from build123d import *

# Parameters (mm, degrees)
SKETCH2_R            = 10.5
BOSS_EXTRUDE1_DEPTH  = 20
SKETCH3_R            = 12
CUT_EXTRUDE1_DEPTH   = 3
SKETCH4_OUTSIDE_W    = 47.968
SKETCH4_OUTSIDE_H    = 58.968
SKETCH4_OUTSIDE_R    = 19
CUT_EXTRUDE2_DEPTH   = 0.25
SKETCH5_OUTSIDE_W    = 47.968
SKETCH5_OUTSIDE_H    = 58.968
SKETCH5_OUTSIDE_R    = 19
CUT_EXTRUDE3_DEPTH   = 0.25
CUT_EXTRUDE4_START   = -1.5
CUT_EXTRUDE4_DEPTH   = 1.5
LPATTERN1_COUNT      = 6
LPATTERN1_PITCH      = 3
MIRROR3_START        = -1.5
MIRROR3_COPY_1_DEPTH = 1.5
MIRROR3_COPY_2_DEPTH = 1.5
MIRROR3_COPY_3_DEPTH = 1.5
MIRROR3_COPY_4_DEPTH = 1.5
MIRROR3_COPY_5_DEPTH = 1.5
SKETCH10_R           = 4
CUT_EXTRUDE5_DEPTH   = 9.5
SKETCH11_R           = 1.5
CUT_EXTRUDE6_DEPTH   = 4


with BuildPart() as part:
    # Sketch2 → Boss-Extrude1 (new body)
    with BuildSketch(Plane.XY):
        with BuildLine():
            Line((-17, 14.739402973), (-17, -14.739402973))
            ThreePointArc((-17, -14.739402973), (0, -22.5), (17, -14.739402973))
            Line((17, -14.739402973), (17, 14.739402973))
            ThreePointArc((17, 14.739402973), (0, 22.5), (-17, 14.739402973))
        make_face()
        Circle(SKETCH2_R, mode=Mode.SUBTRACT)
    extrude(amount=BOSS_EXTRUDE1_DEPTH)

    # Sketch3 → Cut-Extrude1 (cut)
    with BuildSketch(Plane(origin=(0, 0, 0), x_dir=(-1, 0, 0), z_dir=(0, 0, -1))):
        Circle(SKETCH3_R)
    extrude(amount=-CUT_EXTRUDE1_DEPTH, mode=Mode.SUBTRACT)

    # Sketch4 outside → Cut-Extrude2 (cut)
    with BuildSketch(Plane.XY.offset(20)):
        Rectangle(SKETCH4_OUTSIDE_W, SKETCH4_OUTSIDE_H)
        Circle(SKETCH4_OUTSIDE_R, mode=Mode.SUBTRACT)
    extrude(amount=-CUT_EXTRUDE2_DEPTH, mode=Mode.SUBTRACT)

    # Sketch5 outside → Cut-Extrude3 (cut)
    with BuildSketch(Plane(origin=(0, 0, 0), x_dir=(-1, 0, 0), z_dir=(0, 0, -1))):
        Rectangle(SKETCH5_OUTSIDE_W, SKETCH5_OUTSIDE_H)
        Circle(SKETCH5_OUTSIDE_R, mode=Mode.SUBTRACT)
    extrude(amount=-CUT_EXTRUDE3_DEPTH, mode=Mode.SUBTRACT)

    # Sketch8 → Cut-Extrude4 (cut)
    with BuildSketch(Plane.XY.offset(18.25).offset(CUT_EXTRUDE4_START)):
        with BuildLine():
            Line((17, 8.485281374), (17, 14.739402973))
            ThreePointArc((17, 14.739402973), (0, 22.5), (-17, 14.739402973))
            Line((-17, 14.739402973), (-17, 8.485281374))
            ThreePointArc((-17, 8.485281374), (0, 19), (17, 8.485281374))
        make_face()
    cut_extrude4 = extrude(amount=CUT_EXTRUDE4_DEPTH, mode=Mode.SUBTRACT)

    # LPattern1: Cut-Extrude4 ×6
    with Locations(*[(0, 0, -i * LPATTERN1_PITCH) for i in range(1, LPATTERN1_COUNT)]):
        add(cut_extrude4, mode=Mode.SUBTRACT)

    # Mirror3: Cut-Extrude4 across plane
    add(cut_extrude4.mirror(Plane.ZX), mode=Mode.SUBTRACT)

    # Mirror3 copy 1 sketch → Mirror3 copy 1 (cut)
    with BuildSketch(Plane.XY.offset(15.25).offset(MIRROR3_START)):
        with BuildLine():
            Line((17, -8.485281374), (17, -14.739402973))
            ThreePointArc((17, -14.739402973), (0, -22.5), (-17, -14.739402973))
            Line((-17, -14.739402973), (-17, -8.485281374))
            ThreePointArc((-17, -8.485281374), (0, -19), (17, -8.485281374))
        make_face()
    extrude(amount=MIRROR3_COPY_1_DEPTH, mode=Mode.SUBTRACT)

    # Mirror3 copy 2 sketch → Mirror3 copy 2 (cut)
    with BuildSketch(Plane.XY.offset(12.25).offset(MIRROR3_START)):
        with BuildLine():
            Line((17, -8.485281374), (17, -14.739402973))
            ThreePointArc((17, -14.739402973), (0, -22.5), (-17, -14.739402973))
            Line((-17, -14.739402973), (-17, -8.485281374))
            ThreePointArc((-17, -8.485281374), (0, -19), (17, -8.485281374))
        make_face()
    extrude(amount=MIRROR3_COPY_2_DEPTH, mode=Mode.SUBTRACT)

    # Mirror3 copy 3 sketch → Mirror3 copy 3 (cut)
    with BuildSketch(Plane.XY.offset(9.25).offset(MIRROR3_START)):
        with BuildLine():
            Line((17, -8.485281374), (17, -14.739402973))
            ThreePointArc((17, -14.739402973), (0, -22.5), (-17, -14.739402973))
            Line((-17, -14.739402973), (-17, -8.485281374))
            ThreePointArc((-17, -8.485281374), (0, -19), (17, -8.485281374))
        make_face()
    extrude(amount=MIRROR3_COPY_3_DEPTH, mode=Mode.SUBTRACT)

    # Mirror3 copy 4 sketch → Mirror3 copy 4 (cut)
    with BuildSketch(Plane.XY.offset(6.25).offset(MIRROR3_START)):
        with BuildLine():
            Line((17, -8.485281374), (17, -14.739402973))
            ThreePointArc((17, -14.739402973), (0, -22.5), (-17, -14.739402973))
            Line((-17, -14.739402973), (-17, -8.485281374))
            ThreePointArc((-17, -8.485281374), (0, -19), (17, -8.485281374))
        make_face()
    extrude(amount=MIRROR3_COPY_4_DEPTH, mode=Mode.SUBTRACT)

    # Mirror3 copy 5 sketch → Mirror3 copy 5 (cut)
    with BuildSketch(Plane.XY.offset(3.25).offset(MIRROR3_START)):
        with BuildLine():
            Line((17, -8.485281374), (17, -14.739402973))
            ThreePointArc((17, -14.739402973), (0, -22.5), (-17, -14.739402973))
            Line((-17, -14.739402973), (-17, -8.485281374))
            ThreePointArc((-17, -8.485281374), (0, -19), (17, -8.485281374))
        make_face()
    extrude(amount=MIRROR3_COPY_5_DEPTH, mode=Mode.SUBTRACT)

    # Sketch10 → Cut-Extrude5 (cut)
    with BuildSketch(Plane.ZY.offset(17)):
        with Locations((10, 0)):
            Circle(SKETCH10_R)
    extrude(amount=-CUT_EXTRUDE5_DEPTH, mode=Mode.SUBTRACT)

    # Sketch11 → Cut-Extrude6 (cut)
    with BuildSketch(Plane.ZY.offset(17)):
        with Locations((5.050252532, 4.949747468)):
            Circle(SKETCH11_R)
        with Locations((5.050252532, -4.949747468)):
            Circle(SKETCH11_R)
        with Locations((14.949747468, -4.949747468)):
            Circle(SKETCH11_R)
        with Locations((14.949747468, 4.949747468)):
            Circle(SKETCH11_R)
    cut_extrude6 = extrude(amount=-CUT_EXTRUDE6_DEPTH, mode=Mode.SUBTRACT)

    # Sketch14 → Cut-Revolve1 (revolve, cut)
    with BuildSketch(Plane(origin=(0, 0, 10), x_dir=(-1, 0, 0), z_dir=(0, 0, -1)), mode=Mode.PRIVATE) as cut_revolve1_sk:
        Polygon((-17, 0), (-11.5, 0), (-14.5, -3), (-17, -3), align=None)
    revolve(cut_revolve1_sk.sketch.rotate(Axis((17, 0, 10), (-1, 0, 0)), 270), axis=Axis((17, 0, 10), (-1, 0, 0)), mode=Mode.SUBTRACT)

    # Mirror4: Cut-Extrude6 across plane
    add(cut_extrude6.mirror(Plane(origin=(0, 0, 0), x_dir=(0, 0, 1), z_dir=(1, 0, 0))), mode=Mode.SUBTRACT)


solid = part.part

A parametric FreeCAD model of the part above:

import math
import FreeCAD as App
import Part
import Sketcher
from FreeCAD import Vector
Q = App.Units.Quantity


def add_polygon(sketch, points):
    """Adds a closed chain of lines whose ends are joined by coincident constraints."""
    first, n = sketch.GeometryCount, len(points)
    for a, b in zip(points, points[1:] + points[:1]):
        sketch.addGeometry(Part.LineSegment(App.Vector(*a, 0), App.Vector(*b, 0)), False)
    for i in range(n):
        sketch.addConstraint(Sketcher.Constraint("Coincident", first + i, 2, first + (i + 1) % n, 1))

doc = App.newDocument("Part")
body = doc.addObject("PartDesign::Body", "Body")

sketch1 = body.newObject("Sketcher::SketchObject", "Sketch")
sketch1.AttachmentSupport = (doc.getObject("XY_Plane"), [""])
sketch1.MapMode = "FlatFace"
sketch1.addGeometry([
    Part.LineSegment(Vector(-17, 15, 0), Vector(-17, -15, 0)),
    Part.ArcOfCircle(Part.Circle(Vector(0, 0, 0), Vector(0, 0, 1), 22), math.radians(-139), math.radians(-41)),
    Part.LineSegment(Vector(17, -15, 0), Vector(17, 15, 0)),
    Part.ArcOfCircle(Part.Circle(Vector(0, 0, 0), Vector(0, 0, 1), 22), math.radians(41), math.radians(139)),
    Part.Circle(Vector(0, 0, 0), Vector(0, 0, 1), 10),
], False)
sketch1.addConstraint([
    Sketcher.Constraint("Coincident", 0, 2, 1, 1),
    Sketcher.Constraint("Coincident", 1, 2, 2, 1),
    Sketcher.Constraint("Coincident", 2, 2, 3, 1),
    Sketcher.Constraint("Coincident", 3, 2, 0, 1),
    Sketcher.Constraint("Vertical", 0),
    Sketcher.Constraint("Vertical", 2),
    Sketcher.Constraint("Coincident", 1, 3, -1, 1),
    Sketcher.Constraint("Coincident", 3, 3, -1, 1),
    Sketcher.Constraint("Coincident", 4, 3, -1, 1),
    Sketcher.Constraint("Equal", 1, 3),
    Sketcher.Constraint("Horizontal", 0, 2, 1, 2),
    Sketcher.Constraint("Diameter", 4, 21.0),
    Sketcher.Constraint("Radius", 1, 22.5),
    Sketcher.Constraint("DistanceX", 0, 2, -1, 1, 17.0),
])
pad1 = body.newObject("PartDesign::Pad", "Pad")
pad1.Profile = sketch1
pad1.Length = 20

sketch2 = body.newObject("Sketcher::SketchObject", "Sketch001")
sketch2.AttachmentSupport = (doc.getObject("XY_Plane"), [""])
sketch2.MapMode = "FlatFace"
sketch2.addGeometry(Part.Circle(Vector(0, 0, 0), Vector(0, 0, 1), 12), False)
sketch2.addConstraint([
    Sketcher.Constraint("Coincident", 0, 3, -1, 1),
    Sketcher.Constraint("Diameter", 0, 24.0),
])
pocket1 = body.newObject("PartDesign::Pocket", "Pocket")
pocket1.Profile = sketch2
pocket1.Length = 3
pocket1.Reversed = True

sketch3 = body.newObject("Sketcher::SketchObject", "Sketch002")
sketch3.AttachmentSupport = (doc.getObject("XY_Plane"), [""])
sketch3.MapMode = "FlatFace"
sketch3.AttachmentOffset = App.Placement(Vector(0, 0, 20), App.Rotation())
add_polygon(sketch3, [(-24, 29), (-24, -29), (24, -29), (24, 29)])
sketch3.addGeometry(Part.Circle(Vector(0, 0, 0), Vector(0, 0, 1), 19), False)
sketch3.addConstraint([
    Sketcher.Constraint("Vertical", 0),
    Sketcher.Constraint("Horizontal", 1),
    Sketcher.Constraint("Vertical", 2),
    Sketcher.Constraint("Horizontal", 3),
    Sketcher.Constraint("Coincident", 4, 3, -1, 1),
    Sketcher.Constraint("Symmetric", 0, 2, 2, 2, -1, 1),
    Sketcher.Constraint("Diameter", 4, 38.0),
    Sketcher.Constraint("DistanceX", 1, 1, 1, 2, 47.968),
    Sketcher.Constraint("DistanceY", 0, 2, 0, 1, 58.968),
])
pocket2 = body.newObject("PartDesign::Pocket", "Pocket001")
pocket2.Profile = sketch3
pocket2.Length = 0.25

sketch4 = body.newObject("Sketcher::SketchObject", "Sketch003")
sketch4.AttachmentSupport = (doc.getObject("XY_Plane"), [""])
sketch4.MapMode = "FlatFace"
add_polygon(sketch4, [(24, 29), (24, -29), (-24, -29), (-24, 29)])
sketch4.addGeometry(Part.Circle(Vector(0, 0, 0), Vector(0, 0, 1), 19), False)
sketch4.addConstraint([
    Sketcher.Constraint("Vertical", 0),
    Sketcher.Constraint("Horizontal", 1),
    Sketcher.Constraint("Vertical", 2),
    Sketcher.Constraint("Horizontal", 3),
    Sketcher.Constraint("Coincident", 4, 3, -1, 1),
    Sketcher.Constraint("Symmetric", 0, 2, 2, 2, -1, 1),
    Sketcher.Constraint("Diameter", 4, 38.0),
    Sketcher.Constraint("DistanceX", 1, 2, 1, 1, 47.968),
    Sketcher.Constraint("DistanceY", 0, 2, 0, 1, 58.968),
])
pocket3 = body.newObject("PartDesign::Pocket", "Pocket002")
pocket3.Profile = sketch4
pocket3.Length = 0.25
pocket3.Reversed = True

sketch5 = body.newObject("Sketcher::SketchObject", "Sketch004")
sketch5.AttachmentSupport = (doc.getObject("XY_Plane"), [""])
sketch5.MapMode = "FlatFace"
sketch5.AttachmentOffset = App.Placement(Vector(0, 0, 16.75), App.Rotation())
sketch5.addGeometry([
    Part.LineSegment(Vector(17, 8, 0), Vector(17, 15, 0)),
    Part.ArcOfCircle(Part.Circle(Vector(0, 0, 0), Vector(0, 0, 1), 22), math.radians(41), math.radians(139)),
    Part.LineSegment(Vector(-17, 15, 0), Vector(-17, 8, 0)),
    Part.ArcOfCircle(Part.Circle(Vector(0, 0, 0), Vector(0, 0, 1), 19), math.radians(27), math.radians(153)),
], False)
sketch5.addConstraint([
    Sketcher.Constraint("Coincident", 0, 2, 1, 1),
    Sketcher.Constraint("Coincident", 1, 2, 2, 1),
    Sketcher.Constraint("Coincident", 2, 2, 3, 2),
    Sketcher.Constraint("Coincident", 3, 1, 0, 1),
    Sketcher.Constraint("Vertical", 0),
    Sketcher.Constraint("Vertical", 2),
    Sketcher.Constraint("Coincident", 1, 3, -1, 1),
    Sketcher.Constraint("Coincident", 3, 3, -1, 1),
    Sketcher.Constraint("Horizontal", 0, 2, 1, 2),
    Sketcher.Constraint("Radius", 3, 19.0),
    Sketcher.Constraint("Radius", 1, 22.5),
    Sketcher.Constraint("DistanceX", -1, 1, 0, 2, 17.0),
])
pocket4 = body.newObject("PartDesign::Pocket", "Pocket003")
pocket4.Profile = sketch5
pocket4.Length = 1.5
pocket4.Reversed = True
doc.recompute()

linearpattern = body.newObject("PartDesign::LinearPattern", "LinearPattern")
linearpattern.Originals = [pocket4]
linearpattern.Direction = (doc.getObject("Z_Axis"), [""])
linearpattern.Mode = "offset"
linearpattern.Offset = 3
linearpattern.Occurrences = 6
linearpattern.Reversed = True
body.Tip = linearpattern
doc.recompute()

mirrored = body.newObject("PartDesign::Mirrored", "Mirrored")
mirrored.Originals = [pocket4]
mirrored.MirrorPlane = (doc.getObject("XZ_Plane"), [""])
body.Tip = mirrored

sketch6 = body.newObject("Sketcher::SketchObject", "Sketch005")
sketch6.AttachmentSupport = (doc.getObject("XY_Plane"), [""])
sketch6.MapMode = "FlatFace"
sketch6.AttachmentOffset = App.Placement(Vector(0, 0, 13.75), App.Rotation())
sketch6.addGeometry([
    Part.LineSegment(Vector(17, -15, 0), Vector(17, -8, 0)),
    Part.ArcOfCircle(Part.Circle(Vector(0, 0, 0), Vector(0, 0, 1), 19), math.radians(-153), math.radians(-27)),
    Part.LineSegment(Vector(-17, -8, 0), Vector(-17, -15, 0)),
    Part.ArcOfCircle(Part.Circle(Vector(0, 0, 0), Vector(0, 0, 1), 22), math.radians(-139), math.radians(-41)),
], False)
sketch6.addConstraint([
    Sketcher.Constraint("Coincident", 0, 2, 1, 2),
    Sketcher.Constraint("Coincident", 1, 1, 2, 1),
    Sketcher.Constraint("Coincident", 2, 2, 3, 1),
    Sketcher.Constraint("Coincident", 3, 2, 0, 1),
    Sketcher.Constraint("Vertical", 0),
    Sketcher.Constraint("Vertical", 2),
    Sketcher.Constraint("Coincident", 1, 3, -1, 1),
    Sketcher.Constraint("Coincident", 3, 3, -1, 1),
    Sketcher.Constraint("Horizontal", 0, 2, 1, 1),
    Sketcher.Constraint("Radius", 1, 19.0),
    Sketcher.Constraint("Radius", 3, 22.5),
    Sketcher.Constraint("DistanceX", -1, 1, 0, 2, 17.0),
])
pocket5 = body.newObject("PartDesign::Pocket", "Pocket004")
pocket5.Profile = sketch6
pocket5.Length = 1.5
pocket5.Reversed = True

sketch7 = body.newObject("Sketcher::SketchObject", "Sketch006")
sketch7.AttachmentSupport = (doc.getObject("XY_Plane"), [""])
sketch7.MapMode = "FlatFace"
sketch7.AttachmentOffset = App.Placement(Vector(0, 0, 10.75), App.Rotation())
sketch7.addGeometry([
    Part.LineSegment(Vector(17, -15, 0), Vector(17, -8, 0)),
    Part.ArcOfCircle(Part.Circle(Vector(0, 0, 0), Vector(0, 0, 1), 19), math.radians(-153), math.radians(-27)),
    Part.LineSegment(Vector(-17, -8, 0), Vector(-17, -15, 0)),
    Part.ArcOfCircle(Part.Circle(Vector(0, 0, 0), Vector(0, 0, 1), 22), math.radians(-139), math.radians(-41)),
], False)
sketch7.addConstraint([
    Sketcher.Constraint("Coincident", 0, 2, 1, 2),
    Sketcher.Constraint("Coincident", 1, 1, 2, 1),
    Sketcher.Constraint("Coincident", 2, 2, 3, 1),
    Sketcher.Constraint("Coincident", 3, 2, 0, 1),
    Sketcher.Constraint("Vertical", 0),
    Sketcher.Constraint("Vertical", 2),
    Sketcher.Constraint("Coincident", 1, 3, -1, 1),
    Sketcher.Constraint("Coincident", 3, 3, -1, 1),
    Sketcher.Constraint("Horizontal", 0, 2, 1, 1),
    Sketcher.Constraint("Radius", 1, 19.0),
    Sketcher.Constraint("Radius", 3, 22.5),
    Sketcher.Constraint("DistanceX", -1, 1, 0, 2, 17.0),
])
pocket6 = body.newObject("PartDesign::Pocket", "Pocket005")
pocket6.Profile = sketch7
pocket6.Length = 1.5
pocket6.Reversed = True

sketch8 = body.newObject("Sketcher::SketchObject", "Sketch007")
sketch8.AttachmentSupport = (doc.getObject("XY_Plane"), [""])
sketch8.MapMode = "FlatFace"
sketch8.AttachmentOffset = App.Placement(Vector(0, 0, 7.75), App.Rotation())
sketch8.addGeometry([
    Part.LineSegment(Vector(17, -15, 0), Vector(17, -8, 0)),
    Part.ArcOfCircle(Part.Circle(Vector(0, 0, 0), Vector(0, 0, 1), 19), math.radians(-153), math.radians(-27)),
    Part.LineSegment(Vector(-17, -8, 0), Vector(-17, -15, 0)),
    Part.ArcOfCircle(Part.Circle(Vector(0, 0, 0), Vector(0, 0, 1), 22), math.radians(-139), math.radians(-41)),
], False)
sketch8.addConstraint([
    Sketcher.Constraint("Coincident", 0, 2, 1, 2),
    Sketcher.Constraint("Coincident", 1, 1, 2, 1),
    Sketcher.Constraint("Coincident", 2, 2, 3, 1),
    Sketcher.Constraint("Coincident", 3, 2, 0, 1),
    Sketcher.Constraint("Vertical", 0),
    Sketcher.Constraint("Vertical", 2),
    Sketcher.Constraint("Coincident", 1, 3, -1, 1),
    Sketcher.Constraint("Coincident", 3, 3, -1, 1),
    Sketcher.Constraint("Horizontal", 0, 2, 1, 1),
    Sketcher.Constraint("Radius", 1, 19.0),
    Sketcher.Constraint("Radius", 3, 22.5),
    Sketcher.Constraint("DistanceX", -1, 1, 0, 2, 17.0),
])
pocket7 = body.newObject("PartDesign::Pocket", "Pocket006")
pocket7.Profile = sketch8
pocket7.Length = 1.5
pocket7.Reversed = True

sketch9 = body.newObject("Sketcher::SketchObject", "Sketch008")
sketch9.AttachmentSupport = (doc.getObject("XY_Plane"), [""])
sketch9.MapMode = "FlatFace"
sketch9.AttachmentOffset = App.Placement(Vector(0, 0, 4.75), App.Rotation())
sketch9.addGeometry([
    Part.LineSegment(Vector(17, -15, 0), Vector(17, -8, 0)),
    Part.ArcOfCircle(Part.Circle(Vector(0, 0, 0), Vector(0, 0, 1), 19), math.radians(-153), math.radians(-27)),
    Part.LineSegment(Vector(-17, -8, 0), Vector(-17, -15, 0)),
    Part.ArcOfCircle(Part.Circle(Vector(0, 0, 0), Vector(0, 0, 1), 22), math.radians(-139), math.radians(-41)),
], False)
sketch9.addConstraint([
    Sketcher.Constraint("Coincident", 0, 2, 1, 2),
    Sketcher.Constraint("Coincident", 1, 1, 2, 1),
    Sketcher.Constraint("Coincident", 2, 2, 3, 1),
    Sketcher.Constraint("Coincident", 3, 2, 0, 1),
    Sketcher.Constraint("Vertical", 0),
    Sketcher.Constraint("Vertical", 2),
    Sketcher.Constraint("Coincident", 1, 3, -1, 1),
    Sketcher.Constraint("Coincident", 3, 3, -1, 1),
    Sketcher.Constraint("Horizontal", 0, 2, 1, 1),
    Sketcher.Constraint("Radius", 1, 19.0),
    Sketcher.Constraint("Radius", 3, 22.5),
    Sketcher.Constraint("DistanceX", -1, 1, 0, 2, 17.0),
])
pocket8 = body.newObject("PartDesign::Pocket", "Pocket007")
pocket8.Profile = sketch9
pocket8.Length = 1.5
pocket8.Reversed = True

sketch10 = body.newObject("Sketcher::SketchObject", "Sketch009")
sketch10.AttachmentSupport = (doc.getObject("XY_Plane"), [""])
sketch10.MapMode = "FlatFace"
sketch10.AttachmentOffset = App.Placement(Vector(0, 0, 1.75), App.Rotation())
sketch10.addGeometry([
    Part.LineSegment(Vector(17, -15, 0), Vector(17, -8, 0)),
    Part.ArcOfCircle(Part.Circle(Vector(0, 0, 0), Vector(0, 0, 1), 19), math.radians(-153), math.radians(-27)),
    Part.LineSegment(Vector(-17, -8, 0), Vector(-17, -15, 0)),
    Part.ArcOfCircle(Part.Circle(Vector(0, 0, 0), Vector(0, 0, 1), 22), math.radians(-139), math.radians(-41)),
], False)
sketch10.addConstraint([
    Sketcher.Constraint("Coincident", 0, 2, 1, 2),
    Sketcher.Constraint("Coincident", 1, 1, 2, 1),
    Sketcher.Constraint("Coincident", 2, 2, 3, 1),
    Sketcher.Constraint("Coincident", 3, 2, 0, 1),
    Sketcher.Constraint("Vertical", 0),
    Sketcher.Constraint("Vertical", 2),
    Sketcher.Constraint("Coincident", 1, 3, -1, 1),
    Sketcher.Constraint("Coincident", 3, 3, -1, 1),
    Sketcher.Constraint("Horizontal", 0, 2, 1, 1),
    Sketcher.Constraint("Radius", 1, 19.0),
    Sketcher.Constraint("Radius", 3, 22.5),
    Sketcher.Constraint("DistanceX", -1, 1, 0, 2, 17.0),
])
pocket9 = body.newObject("PartDesign::Pocket", "Pocket008")
pocket9.Profile = sketch10
pocket9.Length = 1.5
pocket9.Reversed = True

sketch11 = body.newObject("Sketcher::SketchObject", "Sketch010")
sketch11.AttachmentSupport = (doc.getObject("YZ_Plane"), [""])
sketch11.MapMode = "FlatFace"
sketch11.AttachmentOffset = App.Placement(Vector(0, 0, -17), App.Rotation())
sketch11.addGeometry(Part.Circle(Vector(0, 10, 0), Vector(0, 0, 1), 4), False)
sketch11.addConstraint([
    Sketcher.Constraint("PointOnObject", 0, 3, -2),
    Sketcher.Constraint("Diameter", 0, 8.0),
    Sketcher.Constraint("DistanceY", -1, 1, 0, 3, 10.0),
])
pocket10 = body.newObject("PartDesign::Pocket", "Pocket009")
pocket10.Profile = sketch11
pocket10.Length = 9.5
pocket10.Reversed = True

sketch12 = body.newObject("Sketcher::SketchObject", "Sketch011")
sketch12.AttachmentSupport = (doc.getObject("YZ_Plane"), [""])
sketch12.MapMode = "FlatFace"
sketch12.AttachmentOffset = App.Placement(Vector(0, 0, -17), App.Rotation())
sketch12.addGeometry([
    Part.Circle(Vector(4.9, 5.1, 0), Vector(0, 0, 1), 1.5),
    Part.Circle(Vector(-4.9, 5.1, 0), Vector(0, 0, 1), 1.5),
    Part.Circle(Vector(-4.9, 14.9, 0), Vector(0, 0, 1), 1.5),
    Part.Circle(Vector(4.9, 14.9, 0), Vector(0, 0, 1), 1.5),
], False)
sketch12.addConstraint([
    Sketcher.Constraint("Equal", 0, 1),
    Sketcher.Constraint("Equal", 1, 2),
    Sketcher.Constraint("Equal", 2, 3),
    Sketcher.Constraint("Symmetric", 0, 3, 1, 3, -2),
    Sketcher.Constraint("Symmetric", 2, 3, 3, 3, -2),
    Sketcher.Constraint("Vertical", 1, 3, 2, 3),
    Sketcher.Constraint("Diameter", 0, 3.0),
    Sketcher.Constraint("DistanceX", -1, 1, 0, 3, 4.949747),
    Sketcher.Constraint("DistanceY", -1, 1, 0, 3, 5.050253),
    Sketcher.Constraint("DistanceY", -1, 1, 2, 3, 14.949747),
])
pocket11 = body.newObject("PartDesign::Pocket", "Pocket010")
pocket11.Profile = sketch12
pocket11.Length = 4
pocket11.Reversed = True

sketch13 = body.newObject("Sketcher::SketchObject", "Sketch012")
sketch13.AttachmentSupport = (doc.getObject("XY_Plane"), [""])
sketch13.MapMode = "FlatFace"
sketch13.AttachmentOffset = App.Placement(Vector(0, 0, 10), App.Rotation())
add_polygon(sketch13, [(11.5, 0), (17, 0), (17, -3), (14.5, -3)])
sketch13.addConstraint([
    Sketcher.Constraint("Horizontal", 0),
    Sketcher.Constraint("Vertical", 1),
    Sketcher.Constraint("Horizontal", 2),
    Sketcher.Constraint("PointOnObject", 0, 2, -1),
    Sketcher.Constraint("DistanceY", 1, 2, 1, 1, 3.0),
    Sketcher.Constraint("Angle", 3, Q("135 deg")),
    Sketcher.Constraint("DistanceX", 0, 1, 0, 2, 5.5),
    Sketcher.Constraint("DistanceX", -1, 1, 0, 2, 17.0),
])
groove = body.newObject("PartDesign::Groove", "Groove")
groove.Profile = sketch13
groove.ReferenceAxis = (sketch13, ["H_Axis"])
groove.Angle = 360
doc.recompute()

mirrored2 = body.newObject("PartDesign::Mirrored", "Mirrored001")
mirrored2.Originals = [pocket11]
mirrored2.MirrorPlane = (doc.getObject("YZ_Plane"), [""])
body.Tip = mirrored2

doc.recompute()
